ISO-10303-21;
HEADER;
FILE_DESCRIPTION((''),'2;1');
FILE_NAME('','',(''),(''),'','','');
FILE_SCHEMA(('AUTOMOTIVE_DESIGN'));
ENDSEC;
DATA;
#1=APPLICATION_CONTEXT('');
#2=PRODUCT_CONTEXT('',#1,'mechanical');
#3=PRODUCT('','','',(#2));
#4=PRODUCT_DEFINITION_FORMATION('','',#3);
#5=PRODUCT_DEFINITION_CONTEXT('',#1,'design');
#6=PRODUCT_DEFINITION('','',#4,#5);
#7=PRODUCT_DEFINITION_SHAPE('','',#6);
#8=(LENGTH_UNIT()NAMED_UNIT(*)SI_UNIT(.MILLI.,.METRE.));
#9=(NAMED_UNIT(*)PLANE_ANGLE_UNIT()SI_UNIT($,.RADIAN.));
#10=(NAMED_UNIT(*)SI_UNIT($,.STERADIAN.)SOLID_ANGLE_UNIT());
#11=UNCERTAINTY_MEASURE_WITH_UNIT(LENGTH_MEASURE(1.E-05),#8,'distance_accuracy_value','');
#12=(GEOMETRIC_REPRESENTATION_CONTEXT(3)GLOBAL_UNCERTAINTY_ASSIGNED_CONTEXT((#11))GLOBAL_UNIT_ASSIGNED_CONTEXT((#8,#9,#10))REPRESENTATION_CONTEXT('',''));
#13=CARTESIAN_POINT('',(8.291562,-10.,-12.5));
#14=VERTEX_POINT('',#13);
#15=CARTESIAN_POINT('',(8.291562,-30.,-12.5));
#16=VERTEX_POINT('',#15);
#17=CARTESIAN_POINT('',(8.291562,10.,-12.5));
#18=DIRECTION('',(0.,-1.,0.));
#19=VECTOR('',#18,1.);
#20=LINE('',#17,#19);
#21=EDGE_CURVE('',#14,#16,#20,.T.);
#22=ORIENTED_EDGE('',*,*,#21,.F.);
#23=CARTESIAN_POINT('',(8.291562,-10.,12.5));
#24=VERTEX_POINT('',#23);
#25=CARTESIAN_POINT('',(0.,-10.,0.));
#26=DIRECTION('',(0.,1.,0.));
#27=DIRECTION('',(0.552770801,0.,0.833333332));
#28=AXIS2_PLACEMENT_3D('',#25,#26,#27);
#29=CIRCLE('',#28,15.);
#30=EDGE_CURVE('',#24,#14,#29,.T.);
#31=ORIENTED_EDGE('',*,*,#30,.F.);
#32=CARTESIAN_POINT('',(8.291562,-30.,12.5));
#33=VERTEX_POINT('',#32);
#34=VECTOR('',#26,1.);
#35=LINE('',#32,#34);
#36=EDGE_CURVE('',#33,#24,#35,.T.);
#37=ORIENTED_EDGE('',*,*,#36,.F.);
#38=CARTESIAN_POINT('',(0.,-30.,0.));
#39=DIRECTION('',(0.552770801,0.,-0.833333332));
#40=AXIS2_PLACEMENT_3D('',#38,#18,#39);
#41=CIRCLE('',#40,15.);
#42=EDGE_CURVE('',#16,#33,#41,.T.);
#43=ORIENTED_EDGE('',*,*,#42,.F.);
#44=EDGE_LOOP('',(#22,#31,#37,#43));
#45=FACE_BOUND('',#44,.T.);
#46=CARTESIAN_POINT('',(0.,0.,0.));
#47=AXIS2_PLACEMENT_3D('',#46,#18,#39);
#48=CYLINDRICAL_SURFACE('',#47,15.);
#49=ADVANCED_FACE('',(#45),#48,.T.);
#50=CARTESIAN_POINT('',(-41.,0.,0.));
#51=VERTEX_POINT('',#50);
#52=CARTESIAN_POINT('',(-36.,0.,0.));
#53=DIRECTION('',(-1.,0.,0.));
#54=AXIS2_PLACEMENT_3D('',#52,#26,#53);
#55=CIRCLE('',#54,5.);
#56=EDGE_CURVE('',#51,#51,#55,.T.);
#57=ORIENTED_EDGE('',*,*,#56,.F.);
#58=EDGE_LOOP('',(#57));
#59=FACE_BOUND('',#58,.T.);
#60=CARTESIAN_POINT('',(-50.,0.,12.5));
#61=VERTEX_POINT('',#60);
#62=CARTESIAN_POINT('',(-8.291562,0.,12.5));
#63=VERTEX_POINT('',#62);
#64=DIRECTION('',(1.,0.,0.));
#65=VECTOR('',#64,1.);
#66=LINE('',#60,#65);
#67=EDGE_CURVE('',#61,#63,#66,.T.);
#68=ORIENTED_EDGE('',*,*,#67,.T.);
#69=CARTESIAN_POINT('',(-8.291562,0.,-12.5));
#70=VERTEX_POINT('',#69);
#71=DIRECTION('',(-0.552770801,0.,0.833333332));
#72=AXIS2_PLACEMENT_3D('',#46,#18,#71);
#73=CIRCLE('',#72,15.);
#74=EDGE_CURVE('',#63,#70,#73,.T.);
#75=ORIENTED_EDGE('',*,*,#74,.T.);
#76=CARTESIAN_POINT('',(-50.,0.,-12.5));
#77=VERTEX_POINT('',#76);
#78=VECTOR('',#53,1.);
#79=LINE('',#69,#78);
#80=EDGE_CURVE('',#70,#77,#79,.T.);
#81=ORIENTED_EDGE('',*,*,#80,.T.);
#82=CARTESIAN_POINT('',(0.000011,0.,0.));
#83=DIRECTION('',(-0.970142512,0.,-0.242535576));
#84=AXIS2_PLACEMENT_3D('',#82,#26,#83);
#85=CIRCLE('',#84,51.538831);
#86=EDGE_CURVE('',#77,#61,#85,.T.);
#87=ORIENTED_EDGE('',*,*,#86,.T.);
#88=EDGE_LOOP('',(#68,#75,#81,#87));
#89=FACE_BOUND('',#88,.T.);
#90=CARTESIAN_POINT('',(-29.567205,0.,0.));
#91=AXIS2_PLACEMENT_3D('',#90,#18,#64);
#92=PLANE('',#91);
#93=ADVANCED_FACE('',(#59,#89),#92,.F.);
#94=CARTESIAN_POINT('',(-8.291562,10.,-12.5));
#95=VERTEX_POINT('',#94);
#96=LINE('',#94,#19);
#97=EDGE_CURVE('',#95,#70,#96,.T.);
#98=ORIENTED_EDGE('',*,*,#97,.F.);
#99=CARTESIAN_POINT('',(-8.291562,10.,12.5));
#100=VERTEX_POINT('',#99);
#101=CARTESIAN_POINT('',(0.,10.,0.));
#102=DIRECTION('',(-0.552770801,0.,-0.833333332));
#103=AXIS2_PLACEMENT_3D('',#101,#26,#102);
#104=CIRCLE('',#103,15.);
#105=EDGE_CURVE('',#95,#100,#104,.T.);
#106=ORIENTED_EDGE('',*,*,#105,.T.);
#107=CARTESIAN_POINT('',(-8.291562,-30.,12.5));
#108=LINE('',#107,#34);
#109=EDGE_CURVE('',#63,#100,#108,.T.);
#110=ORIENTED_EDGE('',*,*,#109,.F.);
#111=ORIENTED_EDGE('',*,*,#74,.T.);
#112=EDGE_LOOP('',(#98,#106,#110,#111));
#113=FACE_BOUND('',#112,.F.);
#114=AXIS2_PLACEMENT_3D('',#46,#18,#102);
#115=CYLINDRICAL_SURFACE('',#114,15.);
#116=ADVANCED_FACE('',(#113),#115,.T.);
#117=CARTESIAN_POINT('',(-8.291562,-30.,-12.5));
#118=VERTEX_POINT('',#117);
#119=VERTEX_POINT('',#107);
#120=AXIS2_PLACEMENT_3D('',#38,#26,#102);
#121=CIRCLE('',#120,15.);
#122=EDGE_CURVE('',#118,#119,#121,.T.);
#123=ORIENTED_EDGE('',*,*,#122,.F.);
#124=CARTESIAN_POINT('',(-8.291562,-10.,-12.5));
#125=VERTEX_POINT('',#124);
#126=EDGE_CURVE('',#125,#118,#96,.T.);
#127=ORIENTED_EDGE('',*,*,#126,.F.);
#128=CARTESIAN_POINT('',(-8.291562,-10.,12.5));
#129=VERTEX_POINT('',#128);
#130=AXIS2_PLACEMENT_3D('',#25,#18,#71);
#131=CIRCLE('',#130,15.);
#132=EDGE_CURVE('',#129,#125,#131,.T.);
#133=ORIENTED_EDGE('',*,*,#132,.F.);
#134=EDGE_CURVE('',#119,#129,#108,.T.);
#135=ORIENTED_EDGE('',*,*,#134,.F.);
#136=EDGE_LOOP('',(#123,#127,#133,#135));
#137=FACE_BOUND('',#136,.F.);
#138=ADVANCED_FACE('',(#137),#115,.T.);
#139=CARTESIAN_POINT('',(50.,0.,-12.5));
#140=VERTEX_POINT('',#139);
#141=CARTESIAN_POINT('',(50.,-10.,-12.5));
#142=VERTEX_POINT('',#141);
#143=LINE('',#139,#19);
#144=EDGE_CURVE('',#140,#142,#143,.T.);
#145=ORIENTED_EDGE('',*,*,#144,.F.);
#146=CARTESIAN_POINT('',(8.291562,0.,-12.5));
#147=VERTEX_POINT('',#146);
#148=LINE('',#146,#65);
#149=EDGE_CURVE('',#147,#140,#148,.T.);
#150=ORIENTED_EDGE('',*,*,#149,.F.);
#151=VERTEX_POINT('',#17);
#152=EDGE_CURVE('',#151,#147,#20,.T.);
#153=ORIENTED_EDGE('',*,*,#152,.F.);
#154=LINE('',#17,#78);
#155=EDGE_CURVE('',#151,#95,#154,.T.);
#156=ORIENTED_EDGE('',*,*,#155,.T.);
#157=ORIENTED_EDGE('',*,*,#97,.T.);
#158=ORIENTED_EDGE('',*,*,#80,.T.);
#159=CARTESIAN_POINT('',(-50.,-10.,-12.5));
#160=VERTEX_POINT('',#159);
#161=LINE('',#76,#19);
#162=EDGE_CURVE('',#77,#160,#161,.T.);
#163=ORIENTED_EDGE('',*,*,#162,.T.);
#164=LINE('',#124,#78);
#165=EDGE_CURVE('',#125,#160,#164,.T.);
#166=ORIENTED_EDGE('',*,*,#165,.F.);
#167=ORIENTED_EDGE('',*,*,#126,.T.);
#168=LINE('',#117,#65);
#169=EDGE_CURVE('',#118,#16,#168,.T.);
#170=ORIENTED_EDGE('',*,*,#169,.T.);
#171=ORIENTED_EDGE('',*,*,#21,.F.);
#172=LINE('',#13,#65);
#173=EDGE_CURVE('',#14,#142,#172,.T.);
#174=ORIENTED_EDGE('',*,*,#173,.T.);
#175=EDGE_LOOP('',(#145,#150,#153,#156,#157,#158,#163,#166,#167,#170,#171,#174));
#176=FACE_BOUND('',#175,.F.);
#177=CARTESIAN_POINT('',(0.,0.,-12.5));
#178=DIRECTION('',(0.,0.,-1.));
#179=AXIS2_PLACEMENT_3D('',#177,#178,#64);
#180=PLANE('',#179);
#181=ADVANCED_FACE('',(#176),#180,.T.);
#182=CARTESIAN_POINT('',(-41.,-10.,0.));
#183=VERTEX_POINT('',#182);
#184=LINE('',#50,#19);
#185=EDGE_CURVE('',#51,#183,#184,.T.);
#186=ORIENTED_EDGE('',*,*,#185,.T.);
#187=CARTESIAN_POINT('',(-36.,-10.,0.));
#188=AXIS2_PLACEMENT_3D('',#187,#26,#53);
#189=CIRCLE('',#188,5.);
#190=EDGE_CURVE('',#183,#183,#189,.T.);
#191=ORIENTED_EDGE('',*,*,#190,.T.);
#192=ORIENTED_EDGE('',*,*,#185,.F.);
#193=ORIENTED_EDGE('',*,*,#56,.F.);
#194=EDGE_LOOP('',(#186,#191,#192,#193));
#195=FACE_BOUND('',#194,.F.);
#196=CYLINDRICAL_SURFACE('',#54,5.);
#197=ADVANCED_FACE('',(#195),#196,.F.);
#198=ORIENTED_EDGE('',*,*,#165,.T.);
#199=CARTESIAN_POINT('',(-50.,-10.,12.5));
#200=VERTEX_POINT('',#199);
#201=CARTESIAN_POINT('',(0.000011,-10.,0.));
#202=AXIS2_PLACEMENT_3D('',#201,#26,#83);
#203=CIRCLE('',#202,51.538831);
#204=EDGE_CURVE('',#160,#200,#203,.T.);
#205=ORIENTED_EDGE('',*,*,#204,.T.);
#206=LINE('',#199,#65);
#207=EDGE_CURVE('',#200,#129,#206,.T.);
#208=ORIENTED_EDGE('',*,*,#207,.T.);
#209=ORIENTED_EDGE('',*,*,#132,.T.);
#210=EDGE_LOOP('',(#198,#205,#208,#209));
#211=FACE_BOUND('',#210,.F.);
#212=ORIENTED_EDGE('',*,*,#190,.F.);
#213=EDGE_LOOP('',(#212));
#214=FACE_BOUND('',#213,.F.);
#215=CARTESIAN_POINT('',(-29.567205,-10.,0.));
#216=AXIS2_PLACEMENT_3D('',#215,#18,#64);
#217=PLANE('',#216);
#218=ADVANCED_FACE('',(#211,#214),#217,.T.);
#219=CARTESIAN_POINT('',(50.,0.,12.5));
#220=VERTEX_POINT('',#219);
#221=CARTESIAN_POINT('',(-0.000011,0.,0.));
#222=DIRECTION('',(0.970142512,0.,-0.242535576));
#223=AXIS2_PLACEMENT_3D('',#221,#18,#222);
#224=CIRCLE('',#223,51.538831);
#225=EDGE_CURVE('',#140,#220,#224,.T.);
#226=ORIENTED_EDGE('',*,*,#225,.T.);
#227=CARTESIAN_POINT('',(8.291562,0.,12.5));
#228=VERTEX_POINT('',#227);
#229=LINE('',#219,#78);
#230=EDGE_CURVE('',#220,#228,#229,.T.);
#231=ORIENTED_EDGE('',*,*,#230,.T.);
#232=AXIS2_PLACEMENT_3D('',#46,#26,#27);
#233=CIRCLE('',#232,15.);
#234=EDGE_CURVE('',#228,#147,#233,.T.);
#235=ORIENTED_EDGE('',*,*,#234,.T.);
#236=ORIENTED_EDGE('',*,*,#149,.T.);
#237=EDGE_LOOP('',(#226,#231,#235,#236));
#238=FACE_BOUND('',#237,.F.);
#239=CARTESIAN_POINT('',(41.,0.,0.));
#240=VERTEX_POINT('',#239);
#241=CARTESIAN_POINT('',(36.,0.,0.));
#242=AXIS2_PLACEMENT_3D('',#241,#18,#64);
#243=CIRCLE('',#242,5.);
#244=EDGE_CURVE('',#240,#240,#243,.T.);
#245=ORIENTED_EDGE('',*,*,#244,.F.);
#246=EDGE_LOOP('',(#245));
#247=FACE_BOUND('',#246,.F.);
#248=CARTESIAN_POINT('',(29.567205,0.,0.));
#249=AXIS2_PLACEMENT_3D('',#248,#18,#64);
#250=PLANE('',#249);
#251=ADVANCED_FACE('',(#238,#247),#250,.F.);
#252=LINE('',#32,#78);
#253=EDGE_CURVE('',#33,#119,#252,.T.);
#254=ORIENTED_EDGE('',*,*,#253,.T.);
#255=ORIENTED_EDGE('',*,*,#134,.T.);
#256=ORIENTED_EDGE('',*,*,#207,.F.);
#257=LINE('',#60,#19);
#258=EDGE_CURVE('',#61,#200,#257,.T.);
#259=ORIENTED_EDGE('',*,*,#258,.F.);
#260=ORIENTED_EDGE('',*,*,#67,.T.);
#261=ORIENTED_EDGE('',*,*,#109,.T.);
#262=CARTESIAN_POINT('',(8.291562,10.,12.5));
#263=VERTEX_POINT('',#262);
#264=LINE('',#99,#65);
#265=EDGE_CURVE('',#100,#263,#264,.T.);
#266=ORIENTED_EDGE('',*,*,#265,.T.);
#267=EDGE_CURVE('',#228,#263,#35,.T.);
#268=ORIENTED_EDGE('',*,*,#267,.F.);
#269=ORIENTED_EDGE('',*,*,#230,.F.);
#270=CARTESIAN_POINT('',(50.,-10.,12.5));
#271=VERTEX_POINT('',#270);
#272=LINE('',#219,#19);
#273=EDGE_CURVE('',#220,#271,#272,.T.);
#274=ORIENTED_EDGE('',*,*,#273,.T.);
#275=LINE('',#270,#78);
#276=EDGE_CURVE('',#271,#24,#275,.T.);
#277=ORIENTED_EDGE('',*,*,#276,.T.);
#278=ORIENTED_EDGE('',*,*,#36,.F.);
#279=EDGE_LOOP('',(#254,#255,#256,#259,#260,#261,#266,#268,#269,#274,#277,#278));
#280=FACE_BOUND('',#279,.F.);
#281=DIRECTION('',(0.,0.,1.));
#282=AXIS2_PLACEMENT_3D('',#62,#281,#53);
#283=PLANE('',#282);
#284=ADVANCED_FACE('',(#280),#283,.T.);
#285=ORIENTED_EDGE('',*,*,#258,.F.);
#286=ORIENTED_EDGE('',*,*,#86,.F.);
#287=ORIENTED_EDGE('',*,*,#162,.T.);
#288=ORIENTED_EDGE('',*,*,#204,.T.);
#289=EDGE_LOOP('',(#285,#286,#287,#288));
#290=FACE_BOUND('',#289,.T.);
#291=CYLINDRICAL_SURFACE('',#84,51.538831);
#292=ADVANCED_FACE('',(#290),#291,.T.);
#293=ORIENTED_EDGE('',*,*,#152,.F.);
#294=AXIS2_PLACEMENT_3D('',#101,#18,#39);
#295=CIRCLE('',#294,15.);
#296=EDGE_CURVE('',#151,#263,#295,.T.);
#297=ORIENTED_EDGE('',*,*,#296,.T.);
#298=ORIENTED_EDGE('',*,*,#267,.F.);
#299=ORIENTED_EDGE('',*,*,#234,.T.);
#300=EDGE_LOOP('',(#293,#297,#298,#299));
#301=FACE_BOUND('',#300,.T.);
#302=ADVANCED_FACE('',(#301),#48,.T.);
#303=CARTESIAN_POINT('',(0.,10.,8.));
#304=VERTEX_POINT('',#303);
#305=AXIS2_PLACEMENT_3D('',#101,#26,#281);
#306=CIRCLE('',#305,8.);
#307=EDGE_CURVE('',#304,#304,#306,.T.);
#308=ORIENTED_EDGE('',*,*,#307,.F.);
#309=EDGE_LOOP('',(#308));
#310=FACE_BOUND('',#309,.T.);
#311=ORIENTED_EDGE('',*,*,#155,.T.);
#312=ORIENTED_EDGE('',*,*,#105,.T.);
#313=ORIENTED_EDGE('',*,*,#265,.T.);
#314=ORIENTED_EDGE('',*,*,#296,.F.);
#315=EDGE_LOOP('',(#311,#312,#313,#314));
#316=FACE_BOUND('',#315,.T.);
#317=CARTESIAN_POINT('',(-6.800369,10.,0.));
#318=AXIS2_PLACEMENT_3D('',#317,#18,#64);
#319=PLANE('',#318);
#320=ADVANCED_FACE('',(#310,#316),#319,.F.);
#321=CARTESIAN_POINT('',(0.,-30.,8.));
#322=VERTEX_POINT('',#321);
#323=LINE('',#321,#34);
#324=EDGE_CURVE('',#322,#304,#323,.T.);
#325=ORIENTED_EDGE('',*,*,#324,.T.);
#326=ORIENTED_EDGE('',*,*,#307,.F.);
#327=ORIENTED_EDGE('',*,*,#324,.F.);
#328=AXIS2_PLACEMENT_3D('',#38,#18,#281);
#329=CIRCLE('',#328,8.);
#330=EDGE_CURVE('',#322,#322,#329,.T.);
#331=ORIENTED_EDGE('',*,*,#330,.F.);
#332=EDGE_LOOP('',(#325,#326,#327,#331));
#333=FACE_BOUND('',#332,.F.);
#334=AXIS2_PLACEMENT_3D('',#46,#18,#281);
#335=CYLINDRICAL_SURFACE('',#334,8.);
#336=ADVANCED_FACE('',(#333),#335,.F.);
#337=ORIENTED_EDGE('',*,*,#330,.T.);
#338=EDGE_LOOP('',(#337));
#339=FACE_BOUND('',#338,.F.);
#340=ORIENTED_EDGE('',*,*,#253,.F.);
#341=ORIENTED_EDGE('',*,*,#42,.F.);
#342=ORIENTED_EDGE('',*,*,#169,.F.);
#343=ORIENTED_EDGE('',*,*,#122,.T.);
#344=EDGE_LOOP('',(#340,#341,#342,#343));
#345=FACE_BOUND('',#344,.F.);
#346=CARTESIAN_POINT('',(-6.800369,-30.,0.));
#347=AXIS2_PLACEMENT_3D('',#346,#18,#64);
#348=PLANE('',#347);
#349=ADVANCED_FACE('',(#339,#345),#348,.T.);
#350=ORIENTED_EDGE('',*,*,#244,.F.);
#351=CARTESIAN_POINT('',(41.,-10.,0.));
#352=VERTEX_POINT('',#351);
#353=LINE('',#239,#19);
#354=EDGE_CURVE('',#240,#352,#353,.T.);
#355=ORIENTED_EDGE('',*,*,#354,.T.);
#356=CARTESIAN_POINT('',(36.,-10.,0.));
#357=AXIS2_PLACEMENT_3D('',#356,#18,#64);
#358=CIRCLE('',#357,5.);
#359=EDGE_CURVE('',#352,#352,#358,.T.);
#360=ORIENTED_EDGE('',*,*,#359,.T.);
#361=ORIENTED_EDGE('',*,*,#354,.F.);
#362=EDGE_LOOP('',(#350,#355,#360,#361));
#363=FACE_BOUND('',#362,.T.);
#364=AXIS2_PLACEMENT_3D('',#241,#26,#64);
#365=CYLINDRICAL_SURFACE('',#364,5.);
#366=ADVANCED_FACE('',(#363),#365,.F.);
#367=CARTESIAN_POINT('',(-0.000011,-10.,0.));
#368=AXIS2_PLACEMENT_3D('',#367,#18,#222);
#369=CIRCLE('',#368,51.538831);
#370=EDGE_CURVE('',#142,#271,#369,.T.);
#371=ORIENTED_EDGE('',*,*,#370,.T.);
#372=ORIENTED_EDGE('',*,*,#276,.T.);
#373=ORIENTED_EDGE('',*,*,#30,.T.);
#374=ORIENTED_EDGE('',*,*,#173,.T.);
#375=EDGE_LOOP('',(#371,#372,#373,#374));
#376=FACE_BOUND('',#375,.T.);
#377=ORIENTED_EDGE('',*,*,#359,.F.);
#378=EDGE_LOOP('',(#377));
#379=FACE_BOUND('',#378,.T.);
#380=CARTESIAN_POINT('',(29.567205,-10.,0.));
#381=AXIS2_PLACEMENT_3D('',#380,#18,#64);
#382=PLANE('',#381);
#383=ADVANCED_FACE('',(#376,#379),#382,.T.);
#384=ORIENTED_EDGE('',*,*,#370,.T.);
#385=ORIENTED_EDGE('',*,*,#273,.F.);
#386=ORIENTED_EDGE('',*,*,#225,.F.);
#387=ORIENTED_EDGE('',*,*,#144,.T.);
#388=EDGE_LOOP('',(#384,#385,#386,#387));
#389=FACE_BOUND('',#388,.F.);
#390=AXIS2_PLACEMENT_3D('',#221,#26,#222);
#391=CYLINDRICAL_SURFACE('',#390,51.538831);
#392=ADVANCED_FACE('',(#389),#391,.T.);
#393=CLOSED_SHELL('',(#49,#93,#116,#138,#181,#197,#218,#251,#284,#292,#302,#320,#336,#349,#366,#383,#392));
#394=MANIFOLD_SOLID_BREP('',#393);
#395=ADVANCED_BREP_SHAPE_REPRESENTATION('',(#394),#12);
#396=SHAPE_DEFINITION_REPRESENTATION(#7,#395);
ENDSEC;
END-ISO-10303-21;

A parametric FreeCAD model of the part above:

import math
import FreeCAD as App
import Part
import Sketcher

V = App.Vector
Q = App.Units.Quantity

doc = App.newDocument("Part")
body = doc.addObject("PartDesign::Body", "Body")

# Sketch on XZ plane
sketch1 = doc.addObject("Sketcher::SketchObject", "Sketch")
body.addObject(sketch1)
sketch1.AttachmentSupport = (doc.XZ_Plane, [""])
sketch1.MapMode = "FlatFace"
sketch1.addGeometry(Part.ArcOfCircle(Part.Circle(V(0, 0, 0), V(0, 0, 1), 8), math.radians(-90), math.radians(90)), False)
sketch1.addGeometry(Part.LineSegment(V(0, -8, 0), V(0, -12.5, 0)), False)
sketch1.addGeometry(Part.LineSegment(V(0, -12.5, 0), V(8.3, -12.5, 0)), False)
sketch1.addGeometry(Part.ArcOfCircle(Part.Circle(V(0, 0, 0), V(0, 0, 1), 15), math.radians(-56), math.radians(56)), False)
sketch1.addGeometry(Part.LineSegment(V(8.3, 12.5, 0), V(0, 12.5, 0)), False)
sketch1.addGeometry(Part.LineSegment(V(0, 12.5, 0), V(0, 8, 0)), False)
sketch1.addConstraint(Sketcher.Constraint("Coincident", 0, 1, 1, 1))
sketch1.addConstraint(Sketcher.Constraint("Coincident", 1, 2, 2, 1))
sketch1.addConstraint(Sketcher.Constraint("Coincident", 2, 2, 3, 1))
sketch1.addConstraint(Sketcher.Constraint("Coincident", 3, 2, 4, 1))
sketch1.addConstraint(Sketcher.Constraint("Coincident", 4, 2, 5, 1))
sketch1.addConstraint(Sketcher.Constraint("Coincident", 5, 2, 0, 2))
sketch1.addConstraint(Sketcher.Constraint("Vertical", 1))
sketch1.addConstraint(Sketcher.Constraint("Horizontal", 2))
sketch1.addConstraint(Sketcher.Constraint("Horizontal", 4))
sketch1.addConstraint(Sketcher.Constraint("Vertical", 5))
sketch1.addConstraint(Sketcher.Constraint("Coincident", 0, 3, -1, 1))
sketch1.addConstraint(Sketcher.Constraint("Coincident", 3, 3, -1, 1))
sketch1.addConstraint(Sketcher.Constraint("Symmetric", 1, 2, 4, 2, -1, 1))
sketch1.addConstraint(Sketcher.Constraint("PointOnObject", 0, 1, -2))
sketch1.addConstraint(Sketcher.Constraint("Radius", 0, Q("8 mm")))
sketch1.addConstraint(Sketcher.Constraint("Radius", 3, Q("15 mm")))
sketch1.addConstraint(Sketcher.Constraint("DistanceY", 1, 2, 1, 1, Q("4.5 mm")))
pad1 = doc.addObject("PartDesign::Pad", "Pad")
body.addObject(pad1)
pad1.Profile = sketch1
pad1.Type = "TwoLengths"
pad1.Length = 30
pad1.Length2 = 10

# Sketch on XZ plane
sketch2 = doc.addObject("Sketcher::SketchObject", "Sketch001")
body.addObject(sketch2)
sketch2.AttachmentSupport = (doc.XZ_Plane, [""])
sketch2.MapMode = "FlatFace"
sketch2.addGeometry(Part.ArcOfCircle(Part.Circle(V(0, 0, 0), V(0, 0, 1), 15), math.radians(-56), math.radians(56)), False)
sketch2.addGeometry(Part.LineSegment(V(8, -12, 0), V(50, -12, 0)), False)
sketch2.addGeometry(Part.ArcOfCircle(Part.Circle(V(0, 0, 0), V(0, 0, 1), 52), math.radians(-14), math.radians(14)), False)
sketch2.addGeometry(Part.LineSegment(V(50, 12, 0), V(8, 12, 0)), False)
sketch2.addGeometry(Part.Circle(V(36, 0, 0), V(0, 0, 1), 5), False)
sketch2.addConstraint(Sketcher.Constraint("Coincident", 0, 1, 1, 1))
sketch2.addConstraint(Sketcher.Constraint("Coincident", 1, 2, 2, 1))
sketch2.addConstraint(Sketcher.Constraint("Coincident", 2, 2, 3, 1))
sketch2.addConstraint(Sketcher.Constraint("Coincident", 3, 2, 0, 2))
sketch2.addConstraint(Sketcher.Constraint("Horizontal", 1))
sketch2.addConstraint(Sketcher.Constraint("Horizontal", 3))
sketch2.addConstraint(Sketcher.Constraint("Coincident", 0, 3, -1, 1))
sketch2.addConstraint(Sketcher.Constraint("Symmetric", 1, 2, 2, 2, -1))
sketch2.addConstraint(Sketcher.Constraint("PointOnObject", 4, 3, -1))
sketch2.addConstraint(Sketcher.Constraint("Diameter", 4, Q("10 mm")))
sketch2.addConstraint(Sketcher.Constraint("Radius", 0, Q("15 mm")))
sketch2.addConstraint(Sketcher.Constraint("DistanceX", -1, 1, 4, 3, Q("36 mm")))
sketch2.addConstraint(Sketcher.Constraint("DistanceX", -1, 1, 1, 2, Q("50 mm")))
sketch2.addConstraint(Sketcher.Constraint("DistanceY", 1, 2, 2, 2, Q("25 mm")))
sketch2.addConstraint(Sketcher.Constraint("Radius", 2, Q("51.538831 mm")))
pad2 = doc.addObject("PartDesign::Pad", "Pad001")
body.addObject(pad2)
pad2.Profile = sketch2
pad2.Length = 10
body2 = doc.addObject("PartDesign::Body", "Body001")
doc.recompute()

body2.BaseFeature = body
doc.recompute()

mirroring = doc.addObject("Part::Mirroring", "Mirroring")
mirroring.Source = body
mirroring.Base = V(0, 0, 0)
mirroring.Normal = V(1, 0, 0)
body3 = doc.addObject("PartDesign::Body", "Body002")
body3.BaseFeature = mirroring
boolean = doc.addObject("PartDesign::Boolean", "Boolean")
body2.addObject(boolean)
boolean.Type = "Fuse"
boolean.addObjects([body3])
doc.recompute()
mirroring.Visibility = False

doc.recompute()
